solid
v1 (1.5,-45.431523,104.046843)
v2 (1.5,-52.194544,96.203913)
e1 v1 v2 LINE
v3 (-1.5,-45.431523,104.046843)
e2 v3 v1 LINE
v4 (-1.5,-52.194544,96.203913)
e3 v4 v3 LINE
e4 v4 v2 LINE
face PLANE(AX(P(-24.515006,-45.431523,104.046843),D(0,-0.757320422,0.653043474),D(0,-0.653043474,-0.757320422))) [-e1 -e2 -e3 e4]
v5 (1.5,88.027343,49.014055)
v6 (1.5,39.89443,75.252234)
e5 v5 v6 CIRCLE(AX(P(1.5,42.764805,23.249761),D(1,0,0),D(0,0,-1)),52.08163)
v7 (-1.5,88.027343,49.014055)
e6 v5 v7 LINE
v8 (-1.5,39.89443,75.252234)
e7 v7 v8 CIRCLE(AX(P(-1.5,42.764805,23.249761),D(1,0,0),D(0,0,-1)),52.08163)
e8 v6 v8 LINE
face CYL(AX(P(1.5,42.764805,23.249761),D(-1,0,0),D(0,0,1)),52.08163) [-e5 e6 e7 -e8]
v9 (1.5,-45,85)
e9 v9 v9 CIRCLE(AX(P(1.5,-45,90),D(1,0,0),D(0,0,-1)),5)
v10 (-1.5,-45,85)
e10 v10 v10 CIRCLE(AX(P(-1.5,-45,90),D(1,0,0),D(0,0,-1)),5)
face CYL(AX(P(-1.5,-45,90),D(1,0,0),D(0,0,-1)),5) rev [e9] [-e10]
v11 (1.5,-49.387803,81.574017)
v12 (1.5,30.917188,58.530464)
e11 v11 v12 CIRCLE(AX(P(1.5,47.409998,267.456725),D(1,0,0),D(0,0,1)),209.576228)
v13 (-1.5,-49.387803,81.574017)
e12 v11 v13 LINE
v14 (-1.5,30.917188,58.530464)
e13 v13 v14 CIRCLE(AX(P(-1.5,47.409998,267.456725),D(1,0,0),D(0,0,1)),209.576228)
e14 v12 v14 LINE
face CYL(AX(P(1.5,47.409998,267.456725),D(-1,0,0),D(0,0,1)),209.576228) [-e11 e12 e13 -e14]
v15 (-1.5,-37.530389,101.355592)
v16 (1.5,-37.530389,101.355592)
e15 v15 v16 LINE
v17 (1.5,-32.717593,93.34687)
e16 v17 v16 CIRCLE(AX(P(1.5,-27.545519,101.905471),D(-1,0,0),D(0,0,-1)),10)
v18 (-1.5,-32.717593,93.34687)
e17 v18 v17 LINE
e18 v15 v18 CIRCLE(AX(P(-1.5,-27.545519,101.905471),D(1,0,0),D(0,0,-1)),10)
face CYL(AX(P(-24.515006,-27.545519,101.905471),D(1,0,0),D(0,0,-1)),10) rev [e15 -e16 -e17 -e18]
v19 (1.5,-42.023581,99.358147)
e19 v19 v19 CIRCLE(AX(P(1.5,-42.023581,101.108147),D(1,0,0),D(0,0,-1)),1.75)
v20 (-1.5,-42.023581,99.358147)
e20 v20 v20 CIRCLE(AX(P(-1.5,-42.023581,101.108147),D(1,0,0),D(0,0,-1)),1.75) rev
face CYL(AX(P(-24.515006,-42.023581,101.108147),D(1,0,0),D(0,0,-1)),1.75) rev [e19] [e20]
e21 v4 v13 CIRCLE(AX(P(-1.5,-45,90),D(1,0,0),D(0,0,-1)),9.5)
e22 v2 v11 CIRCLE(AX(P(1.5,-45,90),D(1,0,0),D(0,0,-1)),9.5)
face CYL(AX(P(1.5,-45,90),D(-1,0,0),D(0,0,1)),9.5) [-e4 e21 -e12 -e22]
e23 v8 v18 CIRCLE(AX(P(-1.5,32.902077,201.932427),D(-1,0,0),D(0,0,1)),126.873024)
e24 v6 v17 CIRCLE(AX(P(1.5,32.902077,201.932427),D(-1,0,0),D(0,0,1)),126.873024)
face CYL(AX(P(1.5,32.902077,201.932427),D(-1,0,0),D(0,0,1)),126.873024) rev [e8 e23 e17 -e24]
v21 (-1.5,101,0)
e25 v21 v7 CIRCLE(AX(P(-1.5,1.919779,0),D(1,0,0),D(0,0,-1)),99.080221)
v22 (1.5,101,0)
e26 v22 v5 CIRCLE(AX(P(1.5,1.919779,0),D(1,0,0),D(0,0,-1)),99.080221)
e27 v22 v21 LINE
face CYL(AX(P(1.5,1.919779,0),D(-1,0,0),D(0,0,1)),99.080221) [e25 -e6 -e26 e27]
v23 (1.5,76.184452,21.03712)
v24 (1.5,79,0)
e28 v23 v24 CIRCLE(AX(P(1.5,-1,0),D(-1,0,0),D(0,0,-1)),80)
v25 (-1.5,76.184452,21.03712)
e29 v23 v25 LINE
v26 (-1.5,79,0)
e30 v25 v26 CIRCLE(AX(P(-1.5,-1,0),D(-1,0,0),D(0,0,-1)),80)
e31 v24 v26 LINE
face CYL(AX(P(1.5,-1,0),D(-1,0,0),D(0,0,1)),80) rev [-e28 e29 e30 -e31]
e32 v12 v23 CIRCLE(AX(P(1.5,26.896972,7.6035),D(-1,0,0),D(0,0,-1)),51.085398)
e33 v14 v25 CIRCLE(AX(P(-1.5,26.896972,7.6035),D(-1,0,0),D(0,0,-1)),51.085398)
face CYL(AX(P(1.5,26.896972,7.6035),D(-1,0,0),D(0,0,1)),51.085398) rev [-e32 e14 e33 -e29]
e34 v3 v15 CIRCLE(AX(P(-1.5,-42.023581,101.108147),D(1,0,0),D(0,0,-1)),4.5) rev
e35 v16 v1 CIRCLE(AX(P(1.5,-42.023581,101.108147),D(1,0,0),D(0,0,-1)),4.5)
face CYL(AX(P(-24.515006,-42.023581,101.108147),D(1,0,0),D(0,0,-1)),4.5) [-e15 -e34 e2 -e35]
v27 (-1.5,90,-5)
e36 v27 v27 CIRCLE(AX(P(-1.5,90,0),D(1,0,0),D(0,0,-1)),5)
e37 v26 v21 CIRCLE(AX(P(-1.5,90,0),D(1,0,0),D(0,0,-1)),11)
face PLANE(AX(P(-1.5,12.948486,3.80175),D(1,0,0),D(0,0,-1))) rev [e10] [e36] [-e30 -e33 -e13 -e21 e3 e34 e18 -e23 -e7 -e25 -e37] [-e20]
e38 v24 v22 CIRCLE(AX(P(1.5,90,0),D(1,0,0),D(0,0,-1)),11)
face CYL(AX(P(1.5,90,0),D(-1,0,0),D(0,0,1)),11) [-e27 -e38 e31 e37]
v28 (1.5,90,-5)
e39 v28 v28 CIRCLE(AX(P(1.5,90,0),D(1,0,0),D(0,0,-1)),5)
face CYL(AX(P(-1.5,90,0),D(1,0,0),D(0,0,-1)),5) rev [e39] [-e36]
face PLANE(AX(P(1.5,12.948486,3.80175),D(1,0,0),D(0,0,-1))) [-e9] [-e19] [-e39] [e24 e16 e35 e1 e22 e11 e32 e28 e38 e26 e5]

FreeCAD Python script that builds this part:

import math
import FreeCAD as App
import Part
import Sketcher

doc = App.newDocument("Part")
params = doc.addObject("Spreadsheet::Sheet", "Params")
for row, (alias, value) in enumerate([
    ("sketch1_radius", "11 mm"),
    ("sketch1_radius2", "80 mm"),
    ("sketch1_radius3", "9.5 mm"),
    ("pad1_length", "3 mm"),
    ("sketch2_diameter", "10 mm"),
    ("sketch3_radius", "10 mm"),
    ("sketch3_diameter", "3.5 mm"),
    ("sketch3_radius2", "4.5 mm"),
    ("pad2_length", "3 mm"),
], start=1):
    params.set(f"A{row}", alias)
    params.set(f"B{row}", "=" + value)
    params.setAlias(f"B{row}", alias)

body = doc.addObject("PartDesign::Body", "Body")

sketch1 = doc.addObject("Sketcher::SketchObject", "Sketch")
body.addObject(sketch1)
sketch1.AttachmentSupport = (doc.YZ_Plane, [""])
sketch1.MapMode = "FlatFace"
sketch1.addGeometry(Part.ArcOfCircle(Part.Circle(App.Vector(90, 0, 0), App.Vector(0, 0, 1), 11), math.radians(180), math.radians(360)), False)
sketch1.addGeometry(Part.ArcOfCircle(Part.Circle(App.Vector(2, 0, 0), App.Vector(0, 0, 1), 99), math.radians(0), math.radians(30)), False)
sketch1.addGeometry(Part.ArcOfCircle(Part.Circle(App.Vector(43, 23, 0), App.Vector(0, 0, 1), 52), math.radians(30), math.radians(93)), False)
sketch1.addGeometry(Part.ArcOfCircle(Part.Circle(App.Vector(33, 202, 0), App.Vector(0, 0, 1), 127), math.radians(-125), math.radians(-87)), False)
sketch1.addGeometry(Part.ArcOfCircle(Part.Circle(App.Vector(-45, 90, 0), App.Vector(0, 0, 1), 10), math.radians(55), math.radians(242)), False)
sketch1.addGeometry(Part.ArcOfCircle(Part.Circle(App.Vector(47, 267, 0), App.Vector(0, 0, 1), 210), math.radians(-118), math.radians(-95)), False)
sketch1.addGeometry(Part.ArcOfCircle(Part.Circle(App.Vector(27, 8, 0), App.Vector(0, 0, 1), 51), math.radians(15), math.radians(85)), False)
sketch1.addGeometry(Part.ArcOfCircle(Part.Circle(App.Vector(-1, 0, 0), App.Vector(0, 0, 1), 80), math.radians(0), math.radians(15.25)), False)
sketch1.addConstraint(Sketcher.Constraint("Tangent", 0, 2, 1, 1))
sketch1.addConstraint(Sketcher.Constraint("Tangent", 1, 2, 2, 1))
sketch1.addConstraint(Sketcher.Constraint("Tangent", 2, 2, 3, 2))
sketch1.addConstraint(Sketcher.Constraint("Tangent", 3, 1, 4, 1))
sketch1.addConstraint(Sketcher.Constraint("Tangent", 4, 2, 5, 1))
sketch1.addConstraint(Sketcher.Constraint("Tangent", 5, 2, 6, 2))
sketch1.addConstraint(Sketcher.Constraint("Tangent", 6, 1, 7, 2))
sketch1.addConstraint(Sketcher.Constraint("Tangent", 7, 1, 0, 1))
sketch1.addConstraint(Sketcher.Constraint("PointOnObject", 0, 3, -1))
sketch1.addConstraint(Sketcher.Constraint("PointOnObject", 1, 3, -1))
sketch1.addConstraint(Sketcher.Constraint("PointOnObject", 7, 3, -1))
sketch1.addConstraint(Sketcher.Constraint("Radius", 0, 11.0))
sketch1.addConstraint(Sketcher.Constraint("Radius", 7, 80.0))
sketch1.addConstraint(Sketcher.Constraint("Radius", 4, 9.5))
sketch1.addConstraint(Sketcher.Constraint("DistanceX", -1, 1, 0, 3, 90.0))
sketch1.addConstraint(Sketcher.Constraint("DistanceX", 4, 3, -1, 1, 45.0))
sketch1.addConstraint(Sketcher.Constraint("DistanceY", -1, 1, 4, 3, 90.0))
sketch1.addConstraint(Sketcher.Constraint("Radius", 1, 99.080221))
sketch1.addConstraint(Sketcher.Constraint("Radius", 2, 52.08163))
sketch1.addConstraint(Sketcher.Constraint("Radius", 3, 126.873024))
sketch1.addConstraint(Sketcher.Constraint("Radius", 5, 209.576228))
sketch1.addConstraint(Sketcher.Constraint("Radius", 6, 51.085398))
sketch1.addConstraint(Sketcher.Constraint("DistanceX", 3, 1, 2, 3, 82.338))
sketch1.addConstraint(Sketcher.Constraint("DistanceY", -1, 1, 6, 3, 7.6035))
sketch1.setExpression("Constraints[11]", "Params.sketch1_radius")
sketch1.setExpression("Constraints[12]", "Params.sketch1_radius2")
sketch1.setExpression("Constraints[13]", "Params.sketch1_radius3")
pad1 = doc.addObject("PartDesign::Pad", "Pad")
body.addObject(pad1)
pad1.Profile = sketch1
pad1.setExpression("Length", "Params.pad1_length")
pad1.Midplane = True

sketch2 = doc.addObject("Sketcher::SketchObject", "Sketch001")
body.addObject(sketch2)
sketch2.AttachmentSupport = (doc.YZ_Plane, [""])
sketch2.MapMode = "FlatFace"
sketch2.AttachmentOffset = App.Placement(App.Vector(0, 0, 1.5), App.Rotation())
sketch2.addGeometry(Part.Circle(App.Vector(90, 0, 0), App.Vector(0, 0, 1), 5), False)
sketch2.addGeometry(Part.Circle(App.Vector(-45, 90, 0), App.Vector(0, 0, 1), 5), False)
sketch2.addConstraint(Sketcher.Constraint("Equal", 0, 1))
sketch2.addConstraint(Sketcher.Constraint("PointOnObject", 0, 3, -1))
sketch2.addConstraint(Sketcher.Constraint("Diameter", 0, 10.0))
sketch2.addConstraint(Sketcher.Constraint("DistanceX", -1, 1, 0, 3, 90.0))
sketch2.addConstraint(Sketcher.Constraint("DistanceX", 1, 3, -1, 1, 45.0))
sketch2.addConstraint(Sketcher.Constraint("DistanceY", -1, 1, 1, 3, 90.0))
sketch2.setExpression("Constraints[2]", "Params.sketch2_diameter")
pocket1 = doc.addObject("PartDesign::Pocket", "Pocket")
body.addObject(pocket1)
pocket1.Profile = sketch2
pocket1.Type = "ThroughAll"

sketch3 = doc.addObject("Sketcher::SketchObject", "Sketch002")
body.addObject(sketch3)
sketch3.AttachmentSupport = (doc.YZ_Plane, [""])
sketch3.MapMode = "FlatFace"
sketch3.AttachmentOffset = App.Placement(App.Vector(0, 0, 1.5), App.Rotation())
sketch3.addGeometry(Part.LineSegment(App.Vector(-45.4, 104, 0), App.Vector(-52.2, 96.2, 0)), False)
sketch3.addGeometry(Part.ArcOfCircle(Part.Circle(App.Vector(-45.9, 71.6, 0), App.Vector(0, 0, 1), 25.4), math.radians(59), math.radians(104)), False)
sketch3.addGeometry(Part.ArcOfCircle(Part.Circle(App.Vector(-27.5, 101.9, 0), App.Vector(0, 0, 1), 10), math.radians(-177), math.radians(-121)), False)
sketch3.addGeometry(Part.ArcOfCircle(Part.Circle(App.Vector(-42, 101.1, 0), App.Vector(0, 0, 1), 4.5), math.radians(3), math.radians(139)), False)
sketch3.addGeometry(Part.Circle(App.Vector(-42, 101.1, 0), App.Vector(0, 0, 1), 1.8), False)
sketch3.addConstraint(Sketcher.Constraint("Coincident", 0, 2, 1, 2))
sketch3.addConstraint(Sketcher.Constraint("Tangent", 1, 1, 2, 2))
sketch3.addConstraint(Sketcher.Constraint("Tangent", 2, 1, 3, 1))
sketch3.addConstraint(Sketcher.Constraint("Tangent", 3, 2, 0, 1))
sketch3.addConstraint(Sketcher.Constraint("Coincident", 4, 3, 3, 3))
sketch3.addConstraint(Sketcher.Constraint("Radius", 2, 10.0))
sketch3.addConstraint(Sketcher.Constraint("Diameter", 4, 3.5))
sketch3.addConstraint(Sketcher.Constraint("Radius", 3, 4.5))
sketch3.addConstraint(Sketcher.Constraint("Radius", 1, 25.399467))
sketch3.addConstraint(Sketcher.Constraint("DistanceY", 1, 1, 2, 3, 8.558601))
sketch3.addConstraint(Sketcher.Constraint("DistanceY", -1, 1, 1, 3, 71.60848))
sketch3.addConstraint(Sketcher.Constraint("DistanceX", 2, 3, -1, 1, 27.545519))
sketch3.addConstraint(Sketcher.Constraint("DistanceX", 3, 3, -1, 1, 42.023581))
sketch3.addConstraint(Sketcher.Constraint("DistanceX", 0, 2, 1, 1, 19.476951))
sketch3.setExpression("Constraints[5]", "Params.sketch3_radius")
sketch3.setExpression("Constraints[6]", "Params.sketch3_diameter")
sketch3.setExpression("Constraints[7]", "Params.sketch3_radius2")
pad2 = doc.addObject("PartDesign::Pad", "Pad001")
body.addObject(pad2)
pad2.Profile = sketch3
pad2.setExpression("Length", "Params.pad2_length")
pad2.Reversed = True

doc.recompute()
